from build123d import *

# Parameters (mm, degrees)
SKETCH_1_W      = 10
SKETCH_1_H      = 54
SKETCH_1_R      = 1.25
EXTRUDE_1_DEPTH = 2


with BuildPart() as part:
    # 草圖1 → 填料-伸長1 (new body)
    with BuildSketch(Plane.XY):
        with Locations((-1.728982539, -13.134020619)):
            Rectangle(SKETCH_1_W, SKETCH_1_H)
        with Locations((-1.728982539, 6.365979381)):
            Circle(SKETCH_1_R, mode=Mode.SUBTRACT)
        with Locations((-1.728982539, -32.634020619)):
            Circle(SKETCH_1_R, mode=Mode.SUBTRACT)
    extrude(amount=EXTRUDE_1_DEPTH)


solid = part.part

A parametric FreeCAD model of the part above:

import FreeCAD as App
import Part
import Sketcher

V = App.Vector

doc = App.newDocument("Part")
params = doc.addObject("Spreadsheet::Sheet", "Params")
for row, (alias, value) in enumerate([
    ("sketch1_diameter", "2.5 mm"),
    ("sketch1_width", "10 mm"),
    ("sketch1_height", "54 mm"),
    ("pad1_length", "2 mm"),
], start=1):
    params.set(f"A{row}", alias)
    params.set(f"B{row}", "=" + value)
    params.setAlias(f"B{row}", alias)

body = doc.addObject("PartDesign::Body", "Body")

# Sketch on XY plane
sketch1 = doc.addObject("Sketcher::SketchObject", "Sketch")
body.addObject(sketch1)
sketch1.AttachmentSupport = (doc.XY_Plane, [""])
sketch1.MapMode = "FlatFace"
sketch1.addGeometry([
    Part.LineSegment(V(-6.7, 13.9, 0), V(-6.7, -40.1, 0)),  # 0
    Part.LineSegment(V(-6.7, -40.1, 0), V(3.3, -40.1, 0)),  # 1
    Part.LineSegment(V(3.3, -40.1, 0), V(3.3, 13.9, 0)),  # 2
    Part.LineSegment(V(3.3, 13.9, 0), V(-6.7, 13.9, 0)),  # 3
    Part.Circle(V(-1.7, -32.6, 0), V(0, 0, 1), 1.2),  # 4
    Part.Circle(V(-1.7, 6.4, 0), V(0, 0, 1), 1.2),  # 5
], False)
sketch1.addConstraint([
    Sketcher.Constraint("Coincident", 0, 2, 1, 1),
    Sketcher.Constraint("Coincident", 1, 2, 2, 1),
    Sketcher.Constraint("Coincident", 2, 2, 3, 1),
    Sketcher.Constraint("Coincident", 3, 2, 0, 1),
    Sketcher.Constraint("Vertical", 0),
    Sketcher.Constraint("Horizontal", 1),
    Sketcher.Constraint("Vertical", 2),
    Sketcher.Constraint("Horizontal", 3),
    Sketcher.Constraint("Equal", 4, 5),
    Sketcher.Constraint("Vertical", 4, 3, 5, 3),
    Sketcher.Constraint("Diameter", 4, 2.5),
    Sketcher.Constraint("DistanceX", 1, 1, 1, 2, 10.0),
    Sketcher.Constraint("DistanceY", 0, 2, 0, 1, 54.0),
    Sketcher.Constraint("DistanceY", 4, 3, 5, 3, 39.0),
    Sketcher.Constraint("DistanceX", 0, 2, 4, 3, 5.0),
    Sketcher.Constraint("DistanceY", 0, 2, 4, 3, 7.5),
    Sketcher.Constraint("DistanceY", 4, 3, -1, 1, 32.634021),
    Sketcher.Constraint("DistanceX", 4, 3, -1, 1, 1.728983),
])
sketch1.setExpression("Constraints[10]", "Params.sketch1_diameter")
sketch1.setExpression("Constraints[11]", "Params.sketch1_width")
sketch1.setExpression("Constraints[12]", "Params.sketch1_height")
pad1 = doc.addObject("PartDesign::Pad", "Pad")
body.addObject(pad1)
pad1.Profile = sketch1
pad1.setExpression("Length", "Params.pad1_length")

doc.recompute()
